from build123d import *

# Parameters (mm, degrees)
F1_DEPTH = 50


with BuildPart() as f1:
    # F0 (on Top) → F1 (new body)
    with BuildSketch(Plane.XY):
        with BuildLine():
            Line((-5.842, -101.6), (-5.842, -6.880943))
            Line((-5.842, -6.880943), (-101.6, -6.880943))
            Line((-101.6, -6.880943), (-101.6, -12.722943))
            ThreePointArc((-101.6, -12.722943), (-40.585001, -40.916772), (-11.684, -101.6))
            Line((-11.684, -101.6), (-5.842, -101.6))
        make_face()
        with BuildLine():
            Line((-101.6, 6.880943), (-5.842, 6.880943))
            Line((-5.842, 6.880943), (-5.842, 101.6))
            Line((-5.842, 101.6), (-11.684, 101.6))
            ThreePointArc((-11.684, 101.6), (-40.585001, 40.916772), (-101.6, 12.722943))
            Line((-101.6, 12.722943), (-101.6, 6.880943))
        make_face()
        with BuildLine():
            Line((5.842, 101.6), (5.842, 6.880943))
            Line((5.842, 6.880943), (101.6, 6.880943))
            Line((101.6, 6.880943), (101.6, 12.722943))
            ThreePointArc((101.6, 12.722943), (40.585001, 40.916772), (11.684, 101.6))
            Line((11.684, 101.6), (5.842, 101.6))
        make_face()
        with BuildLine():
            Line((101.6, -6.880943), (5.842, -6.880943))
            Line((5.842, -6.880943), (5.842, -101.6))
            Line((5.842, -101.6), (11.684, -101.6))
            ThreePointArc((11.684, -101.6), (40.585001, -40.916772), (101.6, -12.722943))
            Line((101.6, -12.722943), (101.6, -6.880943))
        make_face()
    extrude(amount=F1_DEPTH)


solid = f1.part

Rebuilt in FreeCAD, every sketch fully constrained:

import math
import FreeCAD as App
import Part
import Sketcher
Q = App.Units.Quantity

doc = App.newDocument("Part")
body = doc.addObject("PartDesign::Body", "Body")
body.AllowCompound = True

# Sketch on XY plane
sketch1 = body.newObject("Sketcher::SketchObject", "Sketch")
sketch1.AttachmentSupport = (doc.getObject("XY_Plane"), [""])
sketch1.MapMode = "FlatFace"
sketch1.addGeometry(Part.LineSegment(App.Vector(-5.842, -101.6, 0), App.Vector(-5.842, -6.880943, 0)), False)
sketch1.addGeometry(Part.LineSegment(App.Vector(-5.842, -6.880943, 0), App.Vector(-101.6, -6.880943, 0)), False)
sketch1.addGeometry(Part.LineSegment(App.Vector(-101.6, -6.880943, 0), App.Vector(-101.6, -12.722943, 0)), False)
sketch1.addGeometry(Part.ArcOfCircle(Part.Circle(App.Vector(-110.1064, -111.250852, 0), App.Vector(0, 0, 1), 98.894427), math.radians(5.60026), math.radians(85.065609)), False)
sketch1.addGeometry(Part.LineSegment(App.Vector(-11.684, -101.6, 0), App.Vector(-5.842, -101.6, 0)), False)
sketch1.addGeometry(Part.LineSegment(App.Vector(-101.6, 6.880943, 0), App.Vector(-5.842, 6.880943, 0)), False)
sketch1.addGeometry(Part.LineSegment(App.Vector(-5.842, 6.880943, 0), App.Vector(-5.842, 101.6, 0)), False)
sketch1.addGeometry(Part.LineSegment(App.Vector(-5.842, 101.6, 0), App.Vector(-11.684, 101.6, 0)), False)
sketch1.addGeometry(Part.ArcOfCircle(Part.Circle(App.Vector(-110.1064, 111.250852, 0), App.Vector(0, 0, 1), 98.894427), math.radians(-85.065609), math.radians(-5.60026)), False)
sketch1.addGeometry(Part.LineSegment(App.Vector(-101.6, 12.722943, 0), App.Vector(-101.6, 6.880943, 0)), False)
sketch1.addGeometry(Part.LineSegment(App.Vector(5.842, 101.6, 0), App.Vector(5.842, 6.880943, 0)), False)
sketch1.addGeometry(Part.LineSegment(App.Vector(5.842, 6.880943, 0), App.Vector(101.6, 6.880943, 0)), False)
sketch1.addGeometry(Part.LineSegment(App.Vector(101.6, 6.880943, 0), App.Vector(101.6, 12.722943, 0)), False)
sketch1.addGeometry(Part.ArcOfCircle(Part.Circle(App.Vector(110.1064, 111.250852, 0), App.Vector(0, 0, 1), 98.894427), math.radians(-174.39974), math.radians(-94.934391)), False)
sketch1.addGeometry(Part.LineSegment(App.Vector(11.684, 101.6, 0), App.Vector(5.842, 101.6, 0)), False)
sketch1.addGeometry(Part.LineSegment(App.Vector(101.6, -6.880943, 0), App.Vector(5.842, -6.880943, 0)), False)
sketch1.addGeometry(Part.LineSegment(App.Vector(5.842, -6.880943, 0), App.Vector(5.842, -101.6, 0)), False)
sketch1.addGeometry(Part.LineSegment(App.Vector(5.842, -101.6, 0), App.Vector(11.684, -101.6, 0)), False)
sketch1.addGeometry(Part.ArcOfCircle(Part.Circle(App.Vector(110.1064, -111.250852, 0), App.Vector(0, 0, 1), 98.894427), math.radians(94.934391), math.radians(174.39974)), False)
sketch1.addGeometry(Part.LineSegment(App.Vector(101.6, -12.722943, 0), App.Vector(101.6, -6.880943, 0)), False)
sketch1.addConstraint(Sketcher.Constraint("Coincident", 0, 2, 1, 1))
sketch1.addConstraint(Sketcher.Constraint("Coincident", 1, 2, 2, 1))
sketch1.addConstraint(Sketcher.Constraint("Coincident", 2, 2, 3, 2))
sketch1.addConstraint(Sketcher.Constraint("Coincident", 3, 1, 4, 1))
sketch1.addConstraint(Sketcher.Constraint("Coincident", 4, 2, 0, 1))
sketch1.addConstraint(Sketcher.Constraint("Coincident", 5, 2, 6, 1))
sketch1.addConstraint(Sketcher.Constraint("Coincident", 6, 2, 7, 1))
sketch1.addConstraint(Sketcher.Constraint("Coincident", 7, 2, 8, 2))
sketch1.addConstraint(Sketcher.Constraint("Coincident", 8, 1, 9, 1))
sketch1.addConstraint(Sketcher.Constraint("Coincident", 9, 2, 5, 1))
sketch1.addConstraint(Sketcher.Constraint("Coincident", 10, 2, 11, 1))
sketch1.addConstraint(Sketcher.Constraint("Coincident", 11, 2, 12, 1))
sketch1.addConstraint(Sketcher.Constraint("Coincident", 12, 2, 13, 2))
sketch1.addConstraint(Sketcher.Constraint("Coincident", 13, 1, 14, 1))
sketch1.addConstraint(Sketcher.Constraint("Coincident", 14, 2, 10, 1))
sketch1.addConstraint(Sketcher.Constraint("Coincident", 15, 2, 16, 1))
sketch1.addConstraint(Sketcher.Constraint("Coincident", 16, 2, 17, 1))
sketch1.addConstraint(Sketcher.Constraint("Coincident", 17, 2, 18, 2))
sketch1.addConstraint(Sketcher.Constraint("Coincident", 18, 1, 19, 1))
sketch1.addConstraint(Sketcher.Constraint("Coincident", 19, 2, 15, 1))
sketch1.addConstraint(Sketcher.Constraint("Vertical", 0))
sketch1.addConstraint(Sketcher.Constraint("Horizontal", 1))
sketch1.addConstraint(Sketcher.Constraint("Vertical", 2))
sketch1.addConstraint(Sketcher.Constraint("Horizontal", 4))
sketch1.addConstraint(Sketcher.Constraint("Horizontal", 5))
sketch1.addConstraint(Sketcher.Constraint("Vertical", 6))
sketch1.addConstraint(Sketcher.Constraint("Horizontal", 7))
sketch1.addConstraint(Sketcher.Constraint("Vertical", 9))
sketch1.addConstraint(Sketcher.Constraint("Vertical", 10))
sketch1.addConstraint(Sketcher.Constraint("Horizontal", 11))
sketch1.addConstraint(Sketcher.Constraint("Vertical", 12))
sketch1.addConstraint(Sketcher.Constraint("Horizontal", 14))
sketch1.addConstraint(Sketcher.Constraint("Horizontal", 15))
sketch1.addConstraint(Sketcher.Constraint("Vertical", 16))
sketch1.addConstraint(Sketcher.Constraint("Horizontal", 17))
sketch1.addConstraint(Sketcher.Constraint("Vertical", 19))
sketch1.addConstraint(Sketcher.Constraint("Equal", 3, 8))
sketch1.addConstraint(Sketcher.Constraint("Equal", 8, 13))
sketch1.addConstraint(Sketcher.Constraint("Equal", 13, 18))
sketch1.addConstraint(Sketcher.Constraint("Symmetric", 3, 3, 13, 3, -1, 1))
sketch1.addConstraint(Sketcher.Constraint("Symmetric", 8, 3, 18, 3, -1, 1))
sketch1.addConstraint(Sketcher.Constraint("Symmetric", 0, 2, 10, 2, -1, 1))
sketch1.addConstraint(Sketcher.Constraint("Symmetric", 5, 2, 15, 2, -1, 1))
sketch1.addConstraint(Sketcher.Constraint("Symmetric", 8, 3, 13, 3, -2))
sketch1.addConstraint(Sketcher.Constraint("Symmetric", 5, 2, 10, 2, -2))
sketch1.addConstraint(Sketcher.Constraint("Horizontal", 8, 1, 12, 2))
sketch1.addConstraint(Sketcher.Constraint("Horizontal", 7, 2, 13, 1))
sketch1.addConstraint(Sketcher.Constraint("Horizontal", 4, 2, 16, 2))
sketch1.addConstraint(Sketcher.Constraint("Horizontal", 2, 2, 18, 1))
sketch1.addConstraint(Sketcher.Constraint("Vertical", 3, 1, 7, 2))
sketch1.addConstraint(Sketcher.Constraint("Vertical", 2, 2, 8, 1))
sketch1.addConstraint(Sketcher.Constraint("Equal", 17, 2))
sketch1.addConstraint(Sketcher.Constraint("DistanceX", 1, 2, -1, 1, Q("4 in")))
sketch1.addConstraint(Sketcher.Constraint("DistanceY", 3, 1, -1, 1, Q("4 in")))
sketch1.addConstraint(Sketcher.Constraint("DistanceX", 1, 2, 1, 1, Q("3.77 in")))
sketch1.addConstraint(Sketcher.Constraint("DistanceX", 4, 1, 4, 2, Q("0.23 in")))
sketch1.addConstraint(Sketcher.Constraint("Radius", 3, 98.894427))
sketch1.addConstraint(Sketcher.Constraint("DistanceX", 3, 3, -1, 1, 110.1064))
pad1 = body.newObject("PartDesign::Pad", "Pad")
pad1.Profile = sketch1
pad1.Length = 50

doc.recompute()
